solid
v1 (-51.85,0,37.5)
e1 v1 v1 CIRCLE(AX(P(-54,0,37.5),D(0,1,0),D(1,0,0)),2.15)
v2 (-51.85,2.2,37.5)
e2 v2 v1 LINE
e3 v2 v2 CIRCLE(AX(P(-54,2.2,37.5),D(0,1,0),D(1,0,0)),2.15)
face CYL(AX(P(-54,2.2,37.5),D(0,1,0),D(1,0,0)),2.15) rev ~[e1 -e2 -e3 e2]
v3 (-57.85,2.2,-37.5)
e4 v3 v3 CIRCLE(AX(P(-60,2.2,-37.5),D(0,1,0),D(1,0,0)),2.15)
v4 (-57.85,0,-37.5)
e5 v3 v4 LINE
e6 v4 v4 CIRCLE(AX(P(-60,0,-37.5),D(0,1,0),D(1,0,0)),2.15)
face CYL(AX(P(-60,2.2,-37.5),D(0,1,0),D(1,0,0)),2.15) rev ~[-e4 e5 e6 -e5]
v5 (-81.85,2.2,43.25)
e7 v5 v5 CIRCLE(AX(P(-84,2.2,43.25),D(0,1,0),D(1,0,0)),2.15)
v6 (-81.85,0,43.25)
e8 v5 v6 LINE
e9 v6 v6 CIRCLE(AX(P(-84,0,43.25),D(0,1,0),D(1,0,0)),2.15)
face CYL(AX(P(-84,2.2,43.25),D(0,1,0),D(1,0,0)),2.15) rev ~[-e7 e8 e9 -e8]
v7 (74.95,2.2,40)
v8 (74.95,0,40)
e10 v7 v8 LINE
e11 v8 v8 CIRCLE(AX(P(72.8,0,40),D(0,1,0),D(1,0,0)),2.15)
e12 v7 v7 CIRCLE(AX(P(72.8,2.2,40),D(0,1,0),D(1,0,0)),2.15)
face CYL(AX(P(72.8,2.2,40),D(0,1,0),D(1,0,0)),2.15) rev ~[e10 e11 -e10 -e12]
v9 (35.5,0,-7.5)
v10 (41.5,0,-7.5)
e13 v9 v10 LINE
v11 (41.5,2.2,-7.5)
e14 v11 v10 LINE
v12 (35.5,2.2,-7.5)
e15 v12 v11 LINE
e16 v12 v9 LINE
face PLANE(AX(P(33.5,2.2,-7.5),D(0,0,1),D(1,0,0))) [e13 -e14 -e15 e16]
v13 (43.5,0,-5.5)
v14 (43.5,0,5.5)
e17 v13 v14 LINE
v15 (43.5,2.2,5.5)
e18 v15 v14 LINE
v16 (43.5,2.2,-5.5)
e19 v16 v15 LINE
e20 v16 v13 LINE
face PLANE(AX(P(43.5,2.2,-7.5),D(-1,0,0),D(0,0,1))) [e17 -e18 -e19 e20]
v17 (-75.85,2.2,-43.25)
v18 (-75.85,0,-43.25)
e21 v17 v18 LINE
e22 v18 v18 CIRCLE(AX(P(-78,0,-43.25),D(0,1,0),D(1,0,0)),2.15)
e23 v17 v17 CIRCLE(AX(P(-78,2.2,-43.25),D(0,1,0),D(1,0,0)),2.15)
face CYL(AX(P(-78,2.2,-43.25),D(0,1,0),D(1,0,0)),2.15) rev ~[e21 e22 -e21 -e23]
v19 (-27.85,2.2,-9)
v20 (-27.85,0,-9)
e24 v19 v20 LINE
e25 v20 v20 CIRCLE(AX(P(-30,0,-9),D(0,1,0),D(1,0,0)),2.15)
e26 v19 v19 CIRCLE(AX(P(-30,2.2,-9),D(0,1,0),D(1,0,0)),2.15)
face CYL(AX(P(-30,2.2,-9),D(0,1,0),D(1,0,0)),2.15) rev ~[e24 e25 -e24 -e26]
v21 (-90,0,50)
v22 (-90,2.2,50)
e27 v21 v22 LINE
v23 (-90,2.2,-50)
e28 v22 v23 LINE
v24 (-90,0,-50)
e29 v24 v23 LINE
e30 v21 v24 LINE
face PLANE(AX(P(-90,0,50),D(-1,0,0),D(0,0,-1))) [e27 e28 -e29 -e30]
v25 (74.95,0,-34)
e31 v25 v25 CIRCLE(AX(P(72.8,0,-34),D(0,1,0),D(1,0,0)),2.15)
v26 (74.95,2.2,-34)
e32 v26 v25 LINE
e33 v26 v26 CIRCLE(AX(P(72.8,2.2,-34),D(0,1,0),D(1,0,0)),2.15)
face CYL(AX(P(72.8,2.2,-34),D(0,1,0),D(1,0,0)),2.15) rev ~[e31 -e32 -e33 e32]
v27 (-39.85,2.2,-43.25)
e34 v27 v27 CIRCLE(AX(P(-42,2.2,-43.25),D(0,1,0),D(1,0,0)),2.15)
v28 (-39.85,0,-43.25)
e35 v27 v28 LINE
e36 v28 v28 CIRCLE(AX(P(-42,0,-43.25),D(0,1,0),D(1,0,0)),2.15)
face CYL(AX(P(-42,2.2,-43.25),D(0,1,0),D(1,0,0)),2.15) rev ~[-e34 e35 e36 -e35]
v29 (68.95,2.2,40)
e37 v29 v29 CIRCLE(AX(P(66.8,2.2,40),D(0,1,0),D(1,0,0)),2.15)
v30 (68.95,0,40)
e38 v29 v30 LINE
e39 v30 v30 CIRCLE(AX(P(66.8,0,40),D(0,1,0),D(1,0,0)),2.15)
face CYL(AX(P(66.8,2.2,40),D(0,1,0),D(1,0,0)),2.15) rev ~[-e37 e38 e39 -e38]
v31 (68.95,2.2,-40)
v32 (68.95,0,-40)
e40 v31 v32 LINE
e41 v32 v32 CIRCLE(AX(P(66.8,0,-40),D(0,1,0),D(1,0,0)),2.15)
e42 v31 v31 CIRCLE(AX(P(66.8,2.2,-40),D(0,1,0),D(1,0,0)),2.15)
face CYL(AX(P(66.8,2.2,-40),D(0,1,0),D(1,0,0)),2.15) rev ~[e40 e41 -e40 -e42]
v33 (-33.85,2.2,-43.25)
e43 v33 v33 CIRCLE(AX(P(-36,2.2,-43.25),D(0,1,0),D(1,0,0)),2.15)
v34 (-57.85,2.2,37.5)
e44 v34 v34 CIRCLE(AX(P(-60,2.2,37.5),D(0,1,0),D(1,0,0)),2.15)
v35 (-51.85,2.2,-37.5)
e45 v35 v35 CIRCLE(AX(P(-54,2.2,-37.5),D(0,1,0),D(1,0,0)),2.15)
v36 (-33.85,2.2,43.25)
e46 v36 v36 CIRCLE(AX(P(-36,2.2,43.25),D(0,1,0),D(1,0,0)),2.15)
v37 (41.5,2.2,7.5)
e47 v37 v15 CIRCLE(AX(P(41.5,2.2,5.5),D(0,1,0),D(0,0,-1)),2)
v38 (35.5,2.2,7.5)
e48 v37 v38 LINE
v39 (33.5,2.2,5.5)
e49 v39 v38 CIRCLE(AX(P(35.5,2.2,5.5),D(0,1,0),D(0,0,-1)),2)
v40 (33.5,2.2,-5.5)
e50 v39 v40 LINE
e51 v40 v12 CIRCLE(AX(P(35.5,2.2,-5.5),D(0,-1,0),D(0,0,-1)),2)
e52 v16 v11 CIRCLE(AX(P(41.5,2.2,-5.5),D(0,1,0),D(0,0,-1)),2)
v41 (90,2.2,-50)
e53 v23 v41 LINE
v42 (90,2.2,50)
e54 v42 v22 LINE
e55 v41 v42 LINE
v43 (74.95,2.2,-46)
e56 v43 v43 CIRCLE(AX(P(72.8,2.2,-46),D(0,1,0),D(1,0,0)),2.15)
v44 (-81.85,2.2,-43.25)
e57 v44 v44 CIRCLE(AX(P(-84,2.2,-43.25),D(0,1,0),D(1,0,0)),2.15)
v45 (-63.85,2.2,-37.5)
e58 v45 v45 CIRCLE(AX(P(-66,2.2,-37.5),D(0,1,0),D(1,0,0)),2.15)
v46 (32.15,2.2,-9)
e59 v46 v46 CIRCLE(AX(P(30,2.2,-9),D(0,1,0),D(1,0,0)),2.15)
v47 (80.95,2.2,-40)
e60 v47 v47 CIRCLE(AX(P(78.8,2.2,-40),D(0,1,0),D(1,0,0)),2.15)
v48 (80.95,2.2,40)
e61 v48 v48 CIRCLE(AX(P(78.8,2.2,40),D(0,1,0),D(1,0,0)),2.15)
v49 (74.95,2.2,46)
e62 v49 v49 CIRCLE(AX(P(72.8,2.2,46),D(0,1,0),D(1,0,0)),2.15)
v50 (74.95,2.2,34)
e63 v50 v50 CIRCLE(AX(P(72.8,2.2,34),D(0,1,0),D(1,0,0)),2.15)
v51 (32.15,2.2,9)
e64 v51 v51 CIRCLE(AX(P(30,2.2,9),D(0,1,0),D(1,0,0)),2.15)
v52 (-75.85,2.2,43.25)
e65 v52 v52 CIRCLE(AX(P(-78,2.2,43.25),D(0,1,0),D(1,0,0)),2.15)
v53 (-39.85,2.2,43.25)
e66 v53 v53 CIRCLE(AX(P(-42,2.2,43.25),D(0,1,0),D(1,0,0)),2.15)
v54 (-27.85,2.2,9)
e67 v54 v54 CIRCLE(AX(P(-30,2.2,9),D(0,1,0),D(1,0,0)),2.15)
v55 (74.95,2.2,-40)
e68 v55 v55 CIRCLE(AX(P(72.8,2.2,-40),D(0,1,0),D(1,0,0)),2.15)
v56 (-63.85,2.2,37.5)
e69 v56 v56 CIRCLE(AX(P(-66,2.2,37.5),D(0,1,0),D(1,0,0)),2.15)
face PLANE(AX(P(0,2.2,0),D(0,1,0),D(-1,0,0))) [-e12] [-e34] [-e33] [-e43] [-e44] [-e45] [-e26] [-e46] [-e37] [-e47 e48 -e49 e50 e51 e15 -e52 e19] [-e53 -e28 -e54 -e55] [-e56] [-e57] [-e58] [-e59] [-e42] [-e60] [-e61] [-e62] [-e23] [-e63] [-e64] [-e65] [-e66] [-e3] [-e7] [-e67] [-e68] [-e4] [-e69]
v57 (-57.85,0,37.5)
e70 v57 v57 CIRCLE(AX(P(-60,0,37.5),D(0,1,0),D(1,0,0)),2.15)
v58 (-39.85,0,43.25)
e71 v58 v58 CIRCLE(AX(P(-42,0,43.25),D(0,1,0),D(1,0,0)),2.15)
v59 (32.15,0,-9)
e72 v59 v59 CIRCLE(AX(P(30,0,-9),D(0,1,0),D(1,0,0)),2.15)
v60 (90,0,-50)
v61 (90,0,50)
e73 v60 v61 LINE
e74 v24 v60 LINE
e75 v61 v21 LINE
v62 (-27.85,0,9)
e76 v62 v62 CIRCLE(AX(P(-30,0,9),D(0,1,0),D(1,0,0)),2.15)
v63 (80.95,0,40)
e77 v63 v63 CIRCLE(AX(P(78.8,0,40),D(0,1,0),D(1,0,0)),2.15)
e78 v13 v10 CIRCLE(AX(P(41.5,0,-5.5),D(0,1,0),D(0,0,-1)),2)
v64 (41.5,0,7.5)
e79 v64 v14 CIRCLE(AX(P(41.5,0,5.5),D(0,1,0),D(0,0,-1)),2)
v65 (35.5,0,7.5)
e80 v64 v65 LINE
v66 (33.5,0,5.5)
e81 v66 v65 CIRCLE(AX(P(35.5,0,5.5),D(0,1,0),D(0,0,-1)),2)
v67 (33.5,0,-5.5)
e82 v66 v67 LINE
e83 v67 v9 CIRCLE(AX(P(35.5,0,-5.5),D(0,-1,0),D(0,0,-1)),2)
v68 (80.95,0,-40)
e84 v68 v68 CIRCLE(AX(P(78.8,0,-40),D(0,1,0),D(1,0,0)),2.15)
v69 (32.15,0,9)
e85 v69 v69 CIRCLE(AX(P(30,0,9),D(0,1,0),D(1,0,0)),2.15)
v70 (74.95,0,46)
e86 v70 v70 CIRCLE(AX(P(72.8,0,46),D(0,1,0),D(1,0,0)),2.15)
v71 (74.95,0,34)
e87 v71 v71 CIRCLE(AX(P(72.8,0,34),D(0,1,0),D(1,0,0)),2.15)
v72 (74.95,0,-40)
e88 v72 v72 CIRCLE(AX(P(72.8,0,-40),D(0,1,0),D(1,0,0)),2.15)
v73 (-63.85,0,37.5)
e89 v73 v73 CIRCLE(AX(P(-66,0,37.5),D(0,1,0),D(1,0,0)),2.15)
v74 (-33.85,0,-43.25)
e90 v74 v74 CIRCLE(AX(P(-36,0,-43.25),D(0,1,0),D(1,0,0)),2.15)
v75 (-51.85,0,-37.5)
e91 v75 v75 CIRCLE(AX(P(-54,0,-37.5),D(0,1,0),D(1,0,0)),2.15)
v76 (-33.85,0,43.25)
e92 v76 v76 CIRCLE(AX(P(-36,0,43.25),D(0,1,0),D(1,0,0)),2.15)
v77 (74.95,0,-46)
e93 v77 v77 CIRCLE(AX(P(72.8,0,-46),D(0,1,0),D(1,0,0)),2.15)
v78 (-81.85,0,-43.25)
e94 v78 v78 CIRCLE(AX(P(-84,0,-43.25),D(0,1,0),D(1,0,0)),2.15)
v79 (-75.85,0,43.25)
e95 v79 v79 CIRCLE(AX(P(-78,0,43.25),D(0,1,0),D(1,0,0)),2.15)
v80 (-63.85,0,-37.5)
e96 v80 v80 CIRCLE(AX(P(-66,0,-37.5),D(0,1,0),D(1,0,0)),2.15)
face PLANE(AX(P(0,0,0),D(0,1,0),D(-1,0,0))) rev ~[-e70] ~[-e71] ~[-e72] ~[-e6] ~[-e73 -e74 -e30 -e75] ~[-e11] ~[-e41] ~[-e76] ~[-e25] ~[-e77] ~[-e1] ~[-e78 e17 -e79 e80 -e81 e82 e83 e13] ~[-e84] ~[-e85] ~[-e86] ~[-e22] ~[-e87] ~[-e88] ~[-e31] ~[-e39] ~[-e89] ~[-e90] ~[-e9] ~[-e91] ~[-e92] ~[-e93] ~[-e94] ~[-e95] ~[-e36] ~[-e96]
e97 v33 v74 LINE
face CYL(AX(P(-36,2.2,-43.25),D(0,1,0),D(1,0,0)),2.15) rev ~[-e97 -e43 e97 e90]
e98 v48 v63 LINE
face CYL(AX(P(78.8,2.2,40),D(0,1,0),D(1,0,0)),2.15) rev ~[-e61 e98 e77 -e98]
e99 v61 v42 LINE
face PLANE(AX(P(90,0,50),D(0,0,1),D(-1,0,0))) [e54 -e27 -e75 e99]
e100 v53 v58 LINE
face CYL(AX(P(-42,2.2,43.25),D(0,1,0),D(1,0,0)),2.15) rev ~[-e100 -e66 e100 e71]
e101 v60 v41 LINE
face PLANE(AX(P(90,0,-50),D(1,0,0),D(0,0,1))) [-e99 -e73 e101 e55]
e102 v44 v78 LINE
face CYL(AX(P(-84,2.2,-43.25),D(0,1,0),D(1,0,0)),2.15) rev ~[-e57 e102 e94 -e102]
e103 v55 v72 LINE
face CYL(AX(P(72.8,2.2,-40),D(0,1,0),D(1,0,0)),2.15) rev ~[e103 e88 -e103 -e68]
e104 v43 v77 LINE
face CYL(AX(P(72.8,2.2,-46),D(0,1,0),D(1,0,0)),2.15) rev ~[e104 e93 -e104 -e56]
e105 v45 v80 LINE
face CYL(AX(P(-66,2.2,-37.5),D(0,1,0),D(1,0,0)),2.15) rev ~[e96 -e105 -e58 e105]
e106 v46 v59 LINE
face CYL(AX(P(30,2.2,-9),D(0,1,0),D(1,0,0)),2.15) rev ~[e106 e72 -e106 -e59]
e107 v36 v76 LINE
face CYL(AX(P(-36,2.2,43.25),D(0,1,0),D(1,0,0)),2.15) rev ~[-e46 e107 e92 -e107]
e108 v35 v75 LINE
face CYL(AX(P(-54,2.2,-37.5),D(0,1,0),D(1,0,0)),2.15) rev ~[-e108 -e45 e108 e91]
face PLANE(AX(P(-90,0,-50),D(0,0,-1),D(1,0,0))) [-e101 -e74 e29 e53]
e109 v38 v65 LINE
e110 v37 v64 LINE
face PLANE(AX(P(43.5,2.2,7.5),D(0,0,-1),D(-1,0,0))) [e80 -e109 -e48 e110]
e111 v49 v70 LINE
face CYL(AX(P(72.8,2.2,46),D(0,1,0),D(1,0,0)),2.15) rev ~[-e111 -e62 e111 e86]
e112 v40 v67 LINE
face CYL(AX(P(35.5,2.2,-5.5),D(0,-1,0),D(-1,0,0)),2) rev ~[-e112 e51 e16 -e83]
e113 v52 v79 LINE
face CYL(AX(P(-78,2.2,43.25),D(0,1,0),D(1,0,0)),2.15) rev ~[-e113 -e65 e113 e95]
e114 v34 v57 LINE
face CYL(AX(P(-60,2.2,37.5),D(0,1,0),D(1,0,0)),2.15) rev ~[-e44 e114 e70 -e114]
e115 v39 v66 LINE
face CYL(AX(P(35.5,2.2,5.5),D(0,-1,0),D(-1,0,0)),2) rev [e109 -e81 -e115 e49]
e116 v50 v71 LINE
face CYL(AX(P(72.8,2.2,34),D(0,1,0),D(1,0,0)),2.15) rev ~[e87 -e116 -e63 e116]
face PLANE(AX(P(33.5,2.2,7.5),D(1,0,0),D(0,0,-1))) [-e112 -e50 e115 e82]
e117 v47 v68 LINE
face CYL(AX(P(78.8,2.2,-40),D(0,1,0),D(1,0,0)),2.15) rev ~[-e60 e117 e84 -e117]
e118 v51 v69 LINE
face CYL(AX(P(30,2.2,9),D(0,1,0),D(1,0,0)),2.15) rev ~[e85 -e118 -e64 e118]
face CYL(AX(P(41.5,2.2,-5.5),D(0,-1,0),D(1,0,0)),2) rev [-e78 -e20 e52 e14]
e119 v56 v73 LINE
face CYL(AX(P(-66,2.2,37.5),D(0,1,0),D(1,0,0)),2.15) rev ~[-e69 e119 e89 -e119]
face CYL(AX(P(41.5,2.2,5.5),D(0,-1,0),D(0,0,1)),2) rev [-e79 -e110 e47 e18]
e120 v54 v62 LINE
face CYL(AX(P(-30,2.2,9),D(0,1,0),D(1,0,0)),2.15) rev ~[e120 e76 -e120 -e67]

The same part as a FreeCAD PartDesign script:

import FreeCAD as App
import Part
import Sketcher
from FreeCAD import Vector


def edges_at(feature, points):
    """Names of the edges that pass closest to the given points."""
    edges = feature.Shape.Edges
    near = lambda p: min(range(len(edges)), key=lambda i: edges[i].distToShape(Part.Vertex(*p))[0])
    return sorted({f"Edge{near(p) + 1}" for p in points})

doc = App.newDocument("Part")
body = doc.addObject("PartDesign::Body", "Body")

# Sketch on XZ plane
sketch1 = body.newObject("Sketcher::SketchObject", "Sketch")
sketch1.AttachmentSupport = (doc.getObject("XZ_Plane"), [""])
sketch1.MapMode = "FlatFace"
sketch1.addGeometry([
    Part.LineSegment(Vector(90, -50, 0), Vector(-90, -50, 0)),
    Part.LineSegment(Vector(-90, -50, 0), Vector(-90, 50, 0)),
    Part.LineSegment(Vector(-90, 50, 0), Vector(90, 50, 0)),
    Part.LineSegment(Vector(90, 50, 0), Vector(90, -50, 0)),
], False)
sketch1.addConstraint([
    Sketcher.Constraint("Coincident", 0, 2, 1, 1),
    Sketcher.Constraint("Coincident", 1, 2, 2, 1),
    Sketcher.Constraint("Coincident", 2, 2, 3, 1),
    Sketcher.Constraint("Coincident", 3, 2, 0, 1),
    Sketcher.Constraint("Horizontal", 0),
    Sketcher.Constraint("Vertical", 1),
    Sketcher.Constraint("Horizontal", 2),
    Sketcher.Constraint("Vertical", 3),
    Sketcher.Constraint("Symmetric", 0, 2, 2, 2, -1, 1),
    Sketcher.Constraint("DistanceX", 0, 2, 0, 1, 180.0),
    Sketcher.Constraint("DistanceY", 1, 1, 1, 2, 100.0),
])
pad1 = body.newObject("PartDesign::Pad", "Pad")
pad1.Profile = sketch1
pad1.Length = 2.2
pad1.Reversed = True

# Sketch on XZ plane
sketch2 = body.newObject("Sketcher::SketchObject", "Sketch001")
sketch2.AttachmentSupport = (doc.getObject("XZ_Plane"), [""])
sketch2.MapMode = "FlatFace"
sketch2.AttachmentOffset = App.Placement(Vector(0, 0, -2.2), App.Rotation())
sketch2.addGeometry([
    Part.Circle(Vector(78.8, 40, 0), Vector(0, 0, 1), 2.1),  # 0
    Part.Circle(Vector(72.8, 40, 0), Vector(0, 0, 1), 2.1),  # 1
    Part.Circle(Vector(66.8, 40, 0), Vector(0, 0, 1), 2.1),  # 2
    Part.Circle(Vector(72.8, 34, 0), Vector(0, 0, 1), 2.1),  # 3
    Part.Circle(Vector(72.8, 46, 0), Vector(0, 0, 1), 2.1),  # 4
    Part.Circle(Vector(78.8, -40, 0), Vector(0, 0, 1), 2.1),  # 5
    Part.Circle(Vector(72.8, -40, 0), Vector(0, 0, 1), 2.1),  # 6
    Part.Circle(Vector(66.8, -40, 0), Vector(0, 0, 1), 2.1),  # 7
    Part.Circle(Vector(72.8, -34, 0), Vector(0, 0, 1), 2.1),  # 8
    Part.Circle(Vector(72.8, -46, 0), Vector(0, 0, 1), 2.1),  # 9
    Part.Circle(Vector(-60, -37.5, 0), Vector(0, 0, 1), 2.1),  # 10
    Part.Circle(Vector(-54, -37.5, 0), Vector(0, 0, 1), 2.1),  # 11
    Part.Circle(Vector(-66, -37.5, 0), Vector(0, 0, 1), 2.1),  # 12
    Part.Circle(Vector(-78, -43.2, 0), Vector(0, 0, 1), 2.1),  # 13
    Part.Circle(Vector(-84, -43.2, 0), Vector(0, 0, 1), 2.1),  # 14
    Part.Circle(Vector(-42, -43.2, 0), Vector(0, 0, 1), 2.1),  # 15
    Part.Circle(Vector(-36, -43.2, 0), Vector(0, 0, 1), 2.1),  # 16
    Part.Circle(Vector(-60, 37.5, 0), Vector(0, 0, 1), 2.1),  # 17
    Part.Circle(Vector(-54, 37.5, 0), Vector(0, 0, 1), 2.1),  # 18
    Part.Circle(Vector(-66, 37.5, 0), Vector(0, 0, 1), 2.1),  # 19
    Part.Circle(Vector(-78, 43.2, 0), Vector(0, 0, 1), 2.1),  # 20
    Part.Circle(Vector(-84, 43.2, 0), Vector(0, 0, 1), 2.1),  # 21
    Part.Circle(Vector(-36, 43.2, 0), Vector(0, 0, 1), 2.1),  # 22
    Part.Circle(Vector(-42, 43.2, 0), Vector(0, 0, 1), 2.1),  # 23
], False)
sketch2.addConstraint([
    Sketcher.Constraint("Equal", 0, 1),
    Sketcher.Constraint("Equal", 1, 2),
    Sketcher.Constraint("Equal", 2, 3),
    Sketcher.Constraint("Equal", 3, 4),
    Sketcher.Constraint("Equal", 4, 5),
    Sketcher.Constraint("Equal", 5, 6),
    Sketcher.Constraint("Equal", 6, 7),
    Sketcher.Constraint("Equal", 7, 8),
    Sketcher.Constraint("Equal", 8, 9),
    Sketcher.Constraint("Equal", 9, 10),
    Sketcher.Constraint("Equal", 10, 11),
    Sketcher.Constraint("Equal", 11, 12),
    Sketcher.Constraint("Equal", 12, 13),
    Sketcher.Constraint("Equal", 13, 14),
    Sketcher.Constraint("Equal", 14, 15),
    Sketcher.Constraint("Equal", 15, 16),
    Sketcher.Constraint("Equal", 16, 17),
    Sketcher.Constraint("Equal", 17, 18),
    Sketcher.Constraint("Equal", 18, 19),
    Sketcher.Constraint("Equal", 19, 20),
    Sketcher.Constraint("Equal", 20, 21),
    Sketcher.Constraint("Equal", 21, 22),
    Sketcher.Constraint("Equal", 22, 23),
    Sketcher.Constraint("Symmetric", 0, 3, 5, 3, -1),
    Sketcher.Constraint("Symmetric", 1, 3, 6, 3, -1),
    Sketcher.Constraint("Symmetric", 2, 3, 7, 3, -1),
    Sketcher.Constraint("Symmetric", 3, 3, 8, 3, -1),
    Sketcher.Constraint("Symmetric", 4, 3, 9, 3, -1),
    Sketcher.Constraint("Symmetric", 10, 3, 17, 3, -1),
    Sketcher.Constraint("Symmetric", 11, 3, 18, 3, -1),
    Sketcher.Constraint("Symmetric", 12, 3, 19, 3, -1),
    Sketcher.Constraint("Symmetric", 13, 3, 20, 3, -1),
    Sketcher.Constraint("Symmetric", 14, 3, 21, 3, -1),
    Sketcher.Constraint("Symmetric", 16, 3, 22, 3, -1),
    Sketcher.Constraint("Symmetric", 15, 3, 23, 3, -1),
    Sketcher.Constraint("Horizontal", 0, 3, 1, 3),
    Sketcher.Constraint("Horizontal", 1, 3, 2, 3),
    Sketcher.Constraint("Horizontal", 10, 3, 11, 3),
    Sketcher.Constraint("Horizontal", 11, 3, 12, 3),
    Sketcher.Constraint("Horizontal", 13, 3, 14, 3),
    Sketcher.Constraint("Horizontal", 14, 3, 15, 3),
    Sketcher.Constraint("Horizontal", 15, 3, 16, 3),
    Sketcher.Constraint("Vertical", 1, 3, 3, 3),
    Sketcher.Constraint("Vertical", 3, 3, 4, 3),
    Sketcher.Constraint("Diameter", 0, 4.3),
    Sketcher.Constraint("DistanceX", 1, 3, 0, 3, 6.0),
    Sketcher.Constraint("DistanceX", 2, 3, 1, 3, 6.0),
    Sketcher.Constraint("DistanceY", 3, 3, 1, 3, 6.0),
    Sketcher.Constraint("DistanceY", 1, 3, 4, 3, 6.0),
    Sketcher.Constraint("DistanceX", 10, 3, 11, 3, 6.0),
    Sketcher.Constraint("DistanceX", 12, 3, 10, 3, 6.0),
    Sketcher.Constraint("DistanceX", 13, 3, 10, 3, 18.0),
    Sketcher.Constraint("DistanceX", 14, 3, 13, 3, 6.0),
    Sketcher.Constraint("DistanceX", 10, 3, 15, 3, 18.0),
    Sketcher.Constraint("DistanceX", 15, 3, 16, 3, 6.0),
    Sketcher.Constraint("DistanceY", -1, 1, 0, 3, 40.0),
    Sketcher.Constraint("DistanceX", 10, 3, -1, 1, 60.0),
    Sketcher.Constraint("DistanceY", 10, 3, 17, 3, 75.0),
    Sketcher.Constraint("DistanceX", -1, 1, 0, 3, 78.8),
    Sketcher.Constraint("DistanceY", 13, 3, -1, 1, 43.25),
])
pocket1 = body.newObject("PartDesign::Pocket", "Pocket")
pocket1.Profile = sketch2
pocket1.Type = "ThroughAll"
pocket1.Reversed = True

# Sketch on XZ plane
sketch3 = body.newObject("Sketcher::SketchObject", "Sketch002")
sketch3.AttachmentSupport = (doc.getObject("XZ_Plane"), [""])
sketch3.MapMode = "FlatFace"
sketch3.AttachmentOffset = App.Placement(Vector(0, 0, -2.2), App.Rotation())
sketch3.addGeometry([
    Part.Circle(Vector(30, -9, 0), Vector(0, 0, 1), 2.1),  # 0
    Part.Circle(Vector(30, 9, 0), Vector(0, 0, 1), 2.1),  # 1
    Part.Circle(Vector(-30, -9, 0), Vector(0, 0, 1), 2.1),  # 2
    Part.Circle(Vector(-30, 9, 0), Vector(0, 0, 1), 2.1),  # 3
    Part.LineSegment(Vector(43.5, -7.5, 0), Vector(33.5, -7.5, 0)),  # 4
    Part.LineSegment(Vector(33.5, -7.5, 0), Vector(33.5, 7.5, 0)),  # 5
    Part.LineSegment(Vector(33.5, 7.5, 0), Vector(43.5, 7.5, 0)),  # 6
    Part.LineSegment(Vector(43.5, 7.5, 0), Vector(43.5, -7.5, 0)),  # 7
], False)
sketch3.addConstraint([
    Sketcher.Constraint("Coincident", 4, 2, 5, 1),
    Sketcher.Constraint("Coincident", 5, 2, 6, 1),
    Sketcher.Constraint("Coincident", 6, 2, 7, 1),
    Sketcher.Constraint("Coincident", 7, 2, 4, 1),
    Sketcher.Constraint("Horizontal", 4),
    Sketcher.Constraint("Vertical", 5),
    Sketcher.Constraint("Horizontal", 6),
    Sketcher.Constraint("Vertical", 7),
    Sketcher.Constraint("Equal", 0, 1),
    Sketcher.Constraint("Equal", 1, 2),
    Sketcher.Constraint("Equal", 2, 3),
    Sketcher.Constraint("Symmetric", 1, 3, 2, 3, -1, 1),
    Sketcher.Constraint("Symmetric", 0, 3, 3, 3, -1, 1),
    Sketcher.Constraint("Symmetric", 0, 3, 2, 3, -2),
    Sketcher.Constraint("Diameter", 0, 4.3),
    Sketcher.Constraint("DistanceX", 4, 2, 4, 1, 10.0),
    Sketcher.Constraint("DistanceY", 5, 1, 5, 2, 15.0),
    Sketcher.Constraint("DistanceX", 0, 3, 4, 2, 3.5),
    Sketcher.Constraint("DistanceX", -1, 1, 0, 3, 30.0),
    Sketcher.Constraint("DistanceY", 0, 3, -1, 1, 9.0),
    Sketcher.Constraint("DistanceY", 4, 2, -1, 1, 7.5),
])
pocket2 = body.newObject("PartDesign::Pocket", "Pocket001")
pocket2.Profile = sketch3
pocket2.Type = "ThroughAll"
pocket2.Reversed = True
doc.recompute()

fillet = body.newObject("PartDesign::Fillet", "Fillet")
fillet.Base = (pocket2, edges_at(pocket2, [
    (33.5, 1.1, -7.5),
    (43.5, 1.1, -7.5),
    (43.5, 1.1, 7.5),
    (33.5, 1.1, 7.5),
]))
fillet.Radius = 2

doc.recompute()
